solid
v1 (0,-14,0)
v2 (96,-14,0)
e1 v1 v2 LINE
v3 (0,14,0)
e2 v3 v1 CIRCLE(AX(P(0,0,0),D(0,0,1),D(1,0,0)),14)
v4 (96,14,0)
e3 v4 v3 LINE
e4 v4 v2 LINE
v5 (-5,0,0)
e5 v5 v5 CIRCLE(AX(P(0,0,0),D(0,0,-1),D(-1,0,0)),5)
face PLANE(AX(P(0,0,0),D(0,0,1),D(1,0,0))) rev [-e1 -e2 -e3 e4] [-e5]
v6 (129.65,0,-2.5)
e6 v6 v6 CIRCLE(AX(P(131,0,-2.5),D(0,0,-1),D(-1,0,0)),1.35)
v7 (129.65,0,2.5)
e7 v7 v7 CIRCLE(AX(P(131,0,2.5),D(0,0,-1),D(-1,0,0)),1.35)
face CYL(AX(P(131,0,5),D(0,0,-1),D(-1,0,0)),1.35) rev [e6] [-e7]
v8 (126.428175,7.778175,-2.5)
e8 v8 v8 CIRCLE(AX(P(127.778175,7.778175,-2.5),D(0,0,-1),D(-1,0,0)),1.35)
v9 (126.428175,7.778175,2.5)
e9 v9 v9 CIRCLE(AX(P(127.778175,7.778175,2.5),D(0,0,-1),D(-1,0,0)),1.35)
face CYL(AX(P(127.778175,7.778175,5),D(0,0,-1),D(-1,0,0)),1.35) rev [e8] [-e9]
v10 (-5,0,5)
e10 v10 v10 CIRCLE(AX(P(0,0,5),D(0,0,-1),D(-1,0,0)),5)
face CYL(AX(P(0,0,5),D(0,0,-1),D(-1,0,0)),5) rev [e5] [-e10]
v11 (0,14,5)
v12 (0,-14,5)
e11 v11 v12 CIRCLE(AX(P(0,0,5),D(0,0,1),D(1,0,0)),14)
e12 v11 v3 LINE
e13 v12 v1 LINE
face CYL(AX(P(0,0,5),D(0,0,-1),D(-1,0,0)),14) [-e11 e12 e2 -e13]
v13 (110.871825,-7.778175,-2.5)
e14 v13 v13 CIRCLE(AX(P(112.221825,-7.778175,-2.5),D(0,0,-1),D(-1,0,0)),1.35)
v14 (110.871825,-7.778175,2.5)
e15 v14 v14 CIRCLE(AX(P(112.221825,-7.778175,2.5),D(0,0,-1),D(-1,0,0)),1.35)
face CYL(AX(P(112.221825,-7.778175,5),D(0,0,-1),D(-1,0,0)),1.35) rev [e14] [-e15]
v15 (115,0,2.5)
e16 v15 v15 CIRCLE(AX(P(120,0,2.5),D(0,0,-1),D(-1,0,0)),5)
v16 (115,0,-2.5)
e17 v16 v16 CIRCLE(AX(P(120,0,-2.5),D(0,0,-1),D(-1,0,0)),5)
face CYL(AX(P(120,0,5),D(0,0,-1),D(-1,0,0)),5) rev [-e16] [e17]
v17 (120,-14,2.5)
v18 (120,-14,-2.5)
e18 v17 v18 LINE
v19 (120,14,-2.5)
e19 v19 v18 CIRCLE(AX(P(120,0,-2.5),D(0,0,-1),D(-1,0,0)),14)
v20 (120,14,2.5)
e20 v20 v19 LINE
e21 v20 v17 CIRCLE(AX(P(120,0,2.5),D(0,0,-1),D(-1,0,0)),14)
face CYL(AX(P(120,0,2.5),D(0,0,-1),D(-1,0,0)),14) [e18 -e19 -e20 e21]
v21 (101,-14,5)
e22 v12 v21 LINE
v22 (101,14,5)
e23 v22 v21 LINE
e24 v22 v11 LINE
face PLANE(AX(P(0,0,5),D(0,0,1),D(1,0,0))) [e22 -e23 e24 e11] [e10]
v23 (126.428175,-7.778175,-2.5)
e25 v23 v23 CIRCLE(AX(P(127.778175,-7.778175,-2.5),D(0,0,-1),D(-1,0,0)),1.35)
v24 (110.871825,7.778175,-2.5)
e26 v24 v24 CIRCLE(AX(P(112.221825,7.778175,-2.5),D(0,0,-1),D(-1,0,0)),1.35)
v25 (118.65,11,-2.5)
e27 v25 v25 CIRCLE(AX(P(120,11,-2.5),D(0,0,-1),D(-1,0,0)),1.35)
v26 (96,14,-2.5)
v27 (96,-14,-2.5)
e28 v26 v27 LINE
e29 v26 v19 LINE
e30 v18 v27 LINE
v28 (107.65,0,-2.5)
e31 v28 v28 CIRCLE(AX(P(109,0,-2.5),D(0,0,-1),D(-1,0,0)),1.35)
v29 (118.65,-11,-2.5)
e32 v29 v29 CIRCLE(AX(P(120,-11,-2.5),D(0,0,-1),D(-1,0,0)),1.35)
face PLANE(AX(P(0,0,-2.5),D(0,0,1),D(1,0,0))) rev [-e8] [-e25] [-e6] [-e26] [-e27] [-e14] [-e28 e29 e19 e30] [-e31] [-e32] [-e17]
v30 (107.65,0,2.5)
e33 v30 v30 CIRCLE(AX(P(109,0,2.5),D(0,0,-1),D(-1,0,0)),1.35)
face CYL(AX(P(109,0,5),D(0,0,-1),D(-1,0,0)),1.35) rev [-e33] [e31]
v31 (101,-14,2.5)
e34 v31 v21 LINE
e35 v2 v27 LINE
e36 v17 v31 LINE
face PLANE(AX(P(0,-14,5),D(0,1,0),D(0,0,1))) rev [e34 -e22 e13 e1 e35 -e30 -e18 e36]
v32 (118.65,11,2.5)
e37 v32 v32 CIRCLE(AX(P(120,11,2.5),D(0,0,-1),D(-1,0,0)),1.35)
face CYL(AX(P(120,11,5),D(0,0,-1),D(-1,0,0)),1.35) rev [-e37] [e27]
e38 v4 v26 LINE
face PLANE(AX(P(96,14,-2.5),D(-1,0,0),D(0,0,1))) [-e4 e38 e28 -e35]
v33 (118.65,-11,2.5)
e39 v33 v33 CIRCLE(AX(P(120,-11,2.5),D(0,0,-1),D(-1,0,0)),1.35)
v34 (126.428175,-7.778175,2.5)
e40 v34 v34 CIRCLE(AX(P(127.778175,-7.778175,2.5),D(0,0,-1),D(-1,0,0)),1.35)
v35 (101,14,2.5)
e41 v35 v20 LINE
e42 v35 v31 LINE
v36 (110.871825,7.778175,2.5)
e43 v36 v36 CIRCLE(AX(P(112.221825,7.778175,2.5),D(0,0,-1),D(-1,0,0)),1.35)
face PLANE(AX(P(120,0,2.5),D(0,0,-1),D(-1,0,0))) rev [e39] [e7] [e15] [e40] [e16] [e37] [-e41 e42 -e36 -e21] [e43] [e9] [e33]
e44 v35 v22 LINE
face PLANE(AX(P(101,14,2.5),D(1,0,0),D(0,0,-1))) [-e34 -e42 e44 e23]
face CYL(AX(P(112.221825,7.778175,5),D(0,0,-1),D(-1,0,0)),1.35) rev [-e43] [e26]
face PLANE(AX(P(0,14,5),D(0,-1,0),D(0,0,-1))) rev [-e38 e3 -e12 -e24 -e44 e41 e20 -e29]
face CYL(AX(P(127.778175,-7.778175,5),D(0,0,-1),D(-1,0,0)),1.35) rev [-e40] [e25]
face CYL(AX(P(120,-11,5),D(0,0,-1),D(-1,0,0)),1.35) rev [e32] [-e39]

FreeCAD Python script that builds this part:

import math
import FreeCAD as App
import Part
import Sketcher
from FreeCAD import Vector
Q = App.Units.Quantity


def add_polygon(sketch, points):
    """Adds a closed chain of lines whose ends are joined by coincident constraints."""
    first, n = sketch.GeometryCount, len(points)
    for a, b in zip(points, points[1:] + points[:1]):
        sketch.addGeometry(Part.LineSegment(App.Vector(*a, 0), App.Vector(*b, 0)), False)
    for i in range(n):
        sketch.addConstraint(Sketcher.Constraint("Coincident", first + i, 2, first + (i + 1) % n, 1))

doc = App.newDocument("Part")
body = doc.addObject("PartDesign::Body", "Body")

sketch1 = doc.addObject("Sketcher::SketchObject", "Sketch")
body.addObject(sketch1)
sketch1.AttachmentSupport = (doc.XY_Plane, [""])
sketch1.MapMode = "FlatFace"
sketch1.addGeometry([
    Part.LineSegment(Vector(0, -14, 0), Vector(122, -14, 0)),
    Part.ArcOfCircle(Part.Circle(Vector(122, 0, 0), Vector(0, 0, 1), 14), math.radians(-90), math.radians(90)),
    Part.LineSegment(Vector(122, 14, 0), Vector(0, 14, 0)),
    Part.ArcOfCircle(Part.Circle(Vector(0, 0, 0), Vector(0, 0, 1), 14), math.radians(90), math.radians(270)),
], False)
sketch1.addConstraint([
    Sketcher.Constraint("Tangent", 0, 2, 1, 1),
    Sketcher.Constraint("Tangent", 1, 2, 2, 1),
    Sketcher.Constraint("Tangent", 2, 2, 3, 1),
    Sketcher.Constraint("Tangent", 3, 2, 0, 1),
    Sketcher.Constraint("Horizontal", 0),
    Sketcher.Constraint("Horizontal", 2),
    Sketcher.Constraint("Coincident", 3, 3, -1, 1),
    Sketcher.Constraint("Radius", 1, Q("14 mm")),
    Sketcher.Constraint("DistanceX", 0, 1, 0, 2, Q("122 mm")),
])
pad1 = doc.addObject("PartDesign::Pad", "Pad")
body.addObject(pad1)
pad1.Profile = sketch1
pad1.Length = 5

sketch2 = doc.addObject("Sketcher::SketchObject", "Sketch001")
body.addObject(sketch2)
sketch2.AttachmentSupport = (doc.XY_Plane, [""])
sketch2.MapMode = "FlatFace"
sketch2.addGeometry([
    Part.Circle(Vector(125.3, 10.5, 0), Vector(0, 0, 1), 1.4),
    Part.Circle(Vector(116.9, 9.8, 0), Vector(0, 0, 1), 1.4),
    Part.Circle(Vector(111.5, 3.3, 0), Vector(0, 0, 1), 1.4),
    Part.Circle(Vector(112.2, -5.1, 0), Vector(0, 0, 1), 1.4),
    Part.Circle(Vector(118.7, -10.5, 0), Vector(0, 0, 1), 1.4),
    Part.Circle(Vector(127.1, -9.8, 0), Vector(0, 0, 1), 1.3),
    Part.Circle(Vector(132.5, -3.3, 0), Vector(0, 0, 1), 1.4),
    Part.Circle(Vector(131.8, 5.1, 0), Vector(0, 0, 1), 1.4),
    Part.Circle(Vector(122, 0, 0), Vector(0, 0, 1), 5),
], False)
sketch2.addConstraint([
    Sketcher.Constraint("Equal", 0, 1),
    Sketcher.Constraint("Equal", 1, 2),
    Sketcher.Constraint("Equal", 2, 3),
    Sketcher.Constraint("Equal", 3, 6),
    Sketcher.Constraint("Equal", 6, 7),
    Sketcher.Constraint("PointOnObject", 8, 3, -1),
    Sketcher.Constraint("Diameter", 8, Q("10 mm")),
    Sketcher.Constraint("Diameter", 0, Q("2.7 mm")),
    Sketcher.Constraint("DistanceX", -1, 1, 8, 3, Q("122 mm")),
    Sketcher.Constraint("Diameter", 5, Q("2.660131 mm")),
    Sketcher.Constraint("Diameter", 4, Q("2.746133 mm")),
    Sketcher.Constraint("DistanceX", 3, 3, 0, 3, Q("13.093602 mm")),
    Sketcher.Constraint("DistanceY", 5, 3, 2, 3, Q("13.093602 mm")),
    Sketcher.Constraint("DistanceY", 6, 3, 1, 3, Q("13.093602 mm")),
    Sketcher.Constraint("DistanceY", -1, 1, 1, 3, Q("9.766478 mm")),
    Sketcher.Constraint("DistanceX", -1, 1, 3, 3, Q("112.233522 mm")),
    Sketcher.Constraint("DistanceY", 5, 3, -1, 1, Q("9.766478 mm")),
    Sketcher.Constraint("DistanceX", -1, 1, 7, 3, Q("131.766478 mm")),
    Sketcher.Constraint("DistanceX", 1, 3, 0, 3, Q("8.388339 mm")),
    Sketcher.Constraint("DistanceY", 2, 3, 0, 3, Q("7.157639 mm")),
    Sketcher.Constraint("DistanceY", 3, 3, 2, 3, Q("8.388339 mm")),
    Sketcher.Constraint("DistanceX", 2, 3, 4, 3, Q("7.157639 mm")),
    Sketcher.Constraint("DistanceX", 1, 3, 4, 3, Q("1.734092 mm")),
    Sketcher.Constraint("DistanceY", 4, 3, 1, 3, Q("20.251241 mm")),
    Sketcher.Constraint("DistanceX", 4, 3, 5, 3, Q("8.388339 mm")),
    Sketcher.Constraint("DistanceX", 0, 3, 6, 3, Q("7.157639 mm")),
    Sketcher.Constraint("DistanceY", 6, 3, 7, 3, Q("8.388339 mm")),
])
pocket1 = doc.addObject("PartDesign::Pocket", "Pocket")
body.addObject(pocket1)
pocket1.Profile = sketch2
pocket1.Type = "ThroughAll"
pocket1.Reversed = True

sketch3 = doc.addObject("Sketcher::SketchObject", "Sketch002")
body.addObject(sketch3)
sketch3.AttachmentSupport = (doc.XY_Plane, [""])
sketch3.MapMode = "FlatFace"
sketch3.addGeometry(Part.Circle(Vector(0, 0, 0), Vector(0, 0, 1), 5), False)
sketch3.addConstraint([
    Sketcher.Constraint("Coincident", 0, 3, -1, 1),
    Sketcher.Constraint("Diameter", 0, Q("10 mm")),
])
pocket2 = doc.addObject("PartDesign::Pocket", "Pocket001")
body.addObject(pocket2)
pocket2.Profile = sketch3
pocket2.Type = "ThroughAll"
pocket2.Reversed = True

sketch4 = doc.addObject("Sketcher::SketchObject", "Sketch003")
body.addObject(sketch4)
sketch4.AttachmentSupport = (doc.XY_Plane, [""])
sketch4.MapMode = "FlatFace"
add_polygon(sketch4, [(137, 14), (137, -14), (106, -14), (106, 14)])
sketch4.addConstraint([
    Sketcher.Constraint("Vertical", 0),
    Sketcher.Constraint("Horizontal", 1),
    Sketcher.Constraint("Vertical", 2),
    Sketcher.Constraint("Horizontal", 3),
    Sketcher.Constraint("DistanceY", 0, 2, 0, 1, Q("28 mm")),
    Sketcher.Constraint("DistanceY", 0, 2, -1, 1, Q("14 mm")),
    Sketcher.Constraint("DistanceX", -1, 1, 1, 2, Q("106 mm")),
    Sketcher.Constraint("DistanceX", 1, 2, 1, 1, Q("31.241154 mm")),
])
pocket3 = doc.addObject("PartDesign::Pocket", "Pocket002")
body.addObject(pocket3)
pocket3.Profile = sketch4
pocket3.Type = "ThroughAll"
pocket3.Reversed = True

sketch5 = doc.addObject("Sketcher::SketchObject", "Sketch004")
body.addObject(sketch5)
sketch5.AttachmentSupport = (doc.XY_Plane, [""])
sketch5.MapMode = "FlatFace"
add_polygon(sketch5, [(106, 14), (106, -14), (101, -14), (101, 14)])
sketch5.addConstraint([
    Sketcher.Constraint("Vertical", 0),
    Sketcher.Constraint("Horizontal", 1),
    Sketcher.Constraint("Vertical", 2),
    Sketcher.Constraint("Horizontal", 3),
    Sketcher.Constraint("DistanceX", 1, 2, 1, 1, Q("5 mm")),
    Sketcher.Constraint("DistanceY", 0, 2, 0, 1, Q("28 mm")),
    Sketcher.Constraint("DistanceX", -1, 1, 0, 2, Q("106 mm")),
    Sketcher.Constraint("DistanceY", 0, 2, -1, 1, Q("14 mm")),
])
pad2 = doc.addObject("PartDesign::Pad", "Pad001")
body.addObject(pad2)
pad2.Profile = sketch5
pad2.Length = 2.5
pad2.Reversed = True

sketch6 = doc.addObject("Sketcher::SketchObject", "Sketch005")
body.addObject(sketch6)
sketch6.AttachmentSupport = (doc.XY_Plane, [""])
sketch6.MapMode = "FlatFace"
sketch6.AttachmentOffset = App.Placement(Vector(0, 0, -2.5), App.Rotation())
sketch6.addGeometry([
    Part.LineSegment(Vector(106, 14, 0), Vector(120, 14, 0)),
    Part.ArcOfCircle(Part.Circle(Vector(120, 0, 0), Vector(0, 0, 1), 14), math.radians(-90), math.radians(90)),
    Part.LineSegment(Vector(120, -14, 0), Vector(106, -14, 0)),
    Part.LineSegment(Vector(106, -14, 0), Vector(106, 14, 0)),
], False)
sketch6.addConstraint([
    Sketcher.Constraint("Tangent", 0, 2, 1, 2),
    Sketcher.Constraint("Tangent", 1, 1, 2, 1),
    Sketcher.Constraint("Coincident", 2, 2, 3, 1),
    Sketcher.Constraint("Coincident", 3, 2, 0, 1),
    Sketcher.Constraint("Horizontal", 0),
    Sketcher.Constraint("Horizontal", 2),
    Sketcher.Constraint("Vertical", 3),
    Sketcher.Constraint("PointOnObject", 1, 3, -1),
    Sketcher.Constraint("Radius", 1, Q("14 mm")),
    Sketcher.Constraint("DistanceX", 0, 1, 0, 2, Q("14 mm")),
    Sketcher.Constraint("DistanceX", -1, 1, 1, 3, Q("120 mm")),
])
pad3 = doc.addObject("PartDesign::Pad", "Pad002")
body.addObject(pad3)
pad3.Profile = sketch6
pad3.Length = 5

sketch7 = doc.addObject("Sketcher::SketchObject", "Sketch006")
body.addObject(sketch7)
sketch7.AttachmentSupport = (doc.XY_Plane, [""])
sketch7.MapMode = "FlatFace"
sketch7.AttachmentOffset = App.Placement(Vector(0, 0, -2.5), App.Rotation())
sketch7.addGeometry([
    Part.Circle(Vector(120, 0, 0), Vector(0, 0, 1), 5),
    Part.Circle(Vector(120, 11, 0), Vector(0, 0, 1), 1.4),
    Part.Circle(Vector(109, 0, 0), Vector(0, 0, 1), 1.4),
    Part.Circle(Vector(120, -11, 0), Vector(0, 0, 1), 1.4),
    Part.Circle(Vector(131, 0, 0), Vector(0, 0, 1), 1.4),
    Part.Circle(Vector(112.2, 7.8, 0), Vector(0, 0, 1), 1.4),
    Part.Circle(Vector(112.2, -7.8, 0), Vector(0, 0, 1), 1.4),
    Part.Circle(Vector(127.8, -7.8, 0), Vector(0, 0, 1), 1.4),
    Part.Circle(Vector(127.8, 7.8, 0), Vector(0, 0, 1), 1.4),
], False)
sketch7.addConstraint([
    Sketcher.Constraint("Equal", 1, 2),
    Sketcher.Constraint("Equal", 2, 3),
    Sketcher.Constraint("Equal", 3, 4),
    Sketcher.Constraint("Equal", 4, 5),
    Sketcher.Constraint("Equal", 5, 6),
    Sketcher.Constraint("Equal", 6, 7),
    Sketcher.Constraint("Equal", 7, 8),
    Sketcher.Constraint("Symmetric", 1, 3, 3, 3, -1),
    Sketcher.Constraint("Symmetric", 5, 3, 6, 3, -1),
    Sketcher.Constraint("Symmetric", 7, 3, 8, 3, -1),
    Sketcher.Constraint("PointOnObject", 0, 3, -1),
    Sketcher.Constraint("PointOnObject", 2, 3, -1),
    Sketcher.Constraint("PointOnObject", 4, 3, -1),
    Sketcher.Constraint("Horizontal", 6, 3, 7, 3),
    Sketcher.Constraint("Vertical", 0, 3, 1, 3),
    Sketcher.Constraint("Diameter", 0, Q("10 mm")),
    Sketcher.Constraint("Diameter", 1, Q("2.7 mm")),
    Sketcher.Constraint("DistanceX", -1, 1, 0, 3, Q("120 mm")),
    Sketcher.Constraint("DistanceY", -1, 1, 1, 3, Q("11 mm")),
    Sketcher.Constraint("DistanceX", -1, 1, 2, 3, Q("109 mm")),
    Sketcher.Constraint("DistanceX", -1, 1, 4, 3, Q("131 mm")),
    Sketcher.Constraint("DistanceY", 6, 3, 5, 3, Q("15.556349 mm")),
    Sketcher.Constraint("DistanceX", 6, 3, 7, 3, Q("15.556349 mm")),
    Sketcher.Constraint("DistanceX", -1, 1, 5, 3, Q("112.221825 mm")),
])
pocket4 = doc.addObject("PartDesign::Pocket", "Pocket003")
body.addObject(pocket4)
pocket4.Profile = sketch7
pocket4.Type = "ThroughAll"
pocket4.Reversed = True

sketch8 = doc.addObject("Sketcher::SketchObject", "Sketch007")
body.addObject(sketch8)
sketch8.AttachmentSupport = (doc.XZ_Plane, [""])
sketch8.MapMode = "FlatFace"
sketch8.AttachmentOffset = App.Placement(Vector(0, 0, 14), App.Rotation())
add_polygon(sketch8, [(101, 5), (101, 2.5), (106, 2.5), (106, 5)])
sketch8.addConstraint([
    Sketcher.Constraint("Vertical", 0),
    Sketcher.Constraint("Horizontal", 1),
    Sketcher.Constraint("Vertical", 2),
    Sketcher.Constraint("Horizontal", 3),
    Sketcher.Constraint("DistanceX", 1, 1, 1, 2, Q("5 mm")),
    Sketcher.Constraint("DistanceY", 0, 2, 0, 1, Q("2.5 mm")),
    Sketcher.Constraint("DistanceX", -1, 1, 0, 2, Q("101 mm")),
    Sketcher.Constraint("DistanceY", -1, 1, 2, 2, Q("5 mm")),
])
pocket5 = doc.addObject("PartDesign::Pocket", "Pocket004")
body.addObject(pocket5)
pocket5.Profile = sketch8
pocket5.Type = "ThroughAll"

sketch9 = doc.addObject("Sketcher::SketchObject", "Sketch008")
body.addObject(sketch9)
sketch9.AttachmentSupport = (doc.XZ_Plane, [""])
sketch9.MapMode = "FlatFace"
sketch9.AttachmentOffset = App.Placement(Vector(0, 0, 14), App.Rotation())
add_polygon(sketch9, [(96, 0), (96, -2.5), (101, -2.5), (101, 0)])
sketch9.addConstraint([
    Sketcher.Constraint("Vertical", 0),
    Sketcher.Constraint("Horizontal", 1),
    Sketcher.Constraint("Vertical", 2),
    Sketcher.Constraint("Horizontal", 3),
    Sketcher.Constraint("PointOnObject", 2, 2, -1),
    Sketcher.Constraint("DistanceX", 1, 1, 1, 2, Q("5 mm")),
    Sketcher.Constraint("DistanceY", 0, 2, 0, 1, Q("2.5 mm")),
    Sketcher.Constraint("DistanceX", -1, 1, 0, 2, Q("96 mm")),
])
pad4 = doc.addObject("PartDesign::Pad", "Pad003")
body.addObject(pad4)
pad4.Profile = sketch9
pad4.Length = 28
pad4.Reversed = True

doc.recompute()
